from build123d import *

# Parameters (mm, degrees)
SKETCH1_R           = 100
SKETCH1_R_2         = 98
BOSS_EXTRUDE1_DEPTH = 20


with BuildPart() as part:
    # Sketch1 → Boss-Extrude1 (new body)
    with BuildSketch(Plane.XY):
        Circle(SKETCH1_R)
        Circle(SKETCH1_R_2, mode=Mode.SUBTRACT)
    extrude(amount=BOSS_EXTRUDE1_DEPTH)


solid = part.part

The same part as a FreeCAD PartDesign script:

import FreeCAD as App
import Part
import Sketcher
from FreeCAD import Vector

doc = App.newDocument("Part")
params = doc.addObject("Spreadsheet::Sheet", "Params")
for row, (alias, value) in enumerate([
    ("sketch1_diameter", "200 mm"),
    ("sketch1_diameter2", "196 mm"),
    ("pad1_length", "20 mm"),
], start=1):
    params.set(f"A{row}", alias)
    params.set(f"B{row}", "=" + value)
    params.setAlias(f"B{row}", alias)

body = doc.addObject("PartDesign::Body", "Body")

# Sketch on XY plane
sketch1 = body.newObject("Sketcher::SketchObject", "Sketch")
sketch1.AttachmentSupport = (doc.getObject("XY_Plane"), [""])
sketch1.MapMode = "FlatFace"
sketch1.addGeometry(Part.Circle(Vector(0, 0, 0), Vector(0, 0, 1), 100), False)
sketch1.addGeometry(Part.Circle(Vector(0, 0, 0), Vector(0, 0, 1), 98), False)
sketch1.addConstraint(Sketcher.Constraint("Coincident", 0, 3, -1, 1))
sketch1.addConstraint(Sketcher.Constraint("Coincident", 1, 3, -1, 1))
sketch1.addConstraint(Sketcher.Constraint("Diameter", 0, 200.0))
sketch1.addConstraint(Sketcher.Constraint("Diameter", 1, 196.0))
sketch1.setExpression("Constraints[2]", "Params.sketch1_diameter")
sketch1.setExpression("Constraints[3]", "Params.sketch1_diameter2")
pad1 = body.newObject("PartDesign::Pad", "Pad")
pad1.Profile = sketch1
pad1.setExpression("Length", "Params.pad1_length")

doc.recompute()
